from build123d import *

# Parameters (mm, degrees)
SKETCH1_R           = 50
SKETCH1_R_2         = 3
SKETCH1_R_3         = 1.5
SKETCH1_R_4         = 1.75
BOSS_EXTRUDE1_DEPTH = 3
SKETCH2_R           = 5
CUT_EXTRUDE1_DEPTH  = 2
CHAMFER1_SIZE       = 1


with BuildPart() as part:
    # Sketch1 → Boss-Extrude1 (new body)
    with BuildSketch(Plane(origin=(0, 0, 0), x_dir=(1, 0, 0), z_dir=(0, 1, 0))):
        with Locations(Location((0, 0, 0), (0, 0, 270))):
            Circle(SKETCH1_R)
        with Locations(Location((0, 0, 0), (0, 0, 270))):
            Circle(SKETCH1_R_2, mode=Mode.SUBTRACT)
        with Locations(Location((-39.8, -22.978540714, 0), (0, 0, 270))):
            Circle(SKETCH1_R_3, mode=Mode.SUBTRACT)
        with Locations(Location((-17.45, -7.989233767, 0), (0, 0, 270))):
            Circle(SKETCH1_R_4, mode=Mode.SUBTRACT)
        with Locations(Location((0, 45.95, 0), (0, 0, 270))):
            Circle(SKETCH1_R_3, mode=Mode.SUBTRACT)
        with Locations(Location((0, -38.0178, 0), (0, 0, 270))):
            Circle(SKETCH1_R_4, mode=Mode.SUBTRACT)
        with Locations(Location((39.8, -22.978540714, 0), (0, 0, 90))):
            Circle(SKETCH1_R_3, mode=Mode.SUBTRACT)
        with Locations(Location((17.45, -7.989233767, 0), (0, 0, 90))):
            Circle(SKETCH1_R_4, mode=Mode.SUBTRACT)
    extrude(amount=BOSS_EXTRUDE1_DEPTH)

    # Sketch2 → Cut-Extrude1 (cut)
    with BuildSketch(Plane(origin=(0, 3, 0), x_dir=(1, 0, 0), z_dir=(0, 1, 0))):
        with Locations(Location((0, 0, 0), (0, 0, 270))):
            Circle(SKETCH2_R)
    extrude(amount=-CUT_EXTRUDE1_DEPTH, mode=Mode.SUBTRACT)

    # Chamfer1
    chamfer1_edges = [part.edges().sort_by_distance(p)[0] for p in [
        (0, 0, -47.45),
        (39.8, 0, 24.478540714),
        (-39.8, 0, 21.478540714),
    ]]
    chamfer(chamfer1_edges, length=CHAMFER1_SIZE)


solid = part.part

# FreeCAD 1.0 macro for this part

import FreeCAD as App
import Part
import Sketcher
Q = App.Units.Quantity


def edges_at(feature, points):
    """Names of the edges that pass closest to the given points."""
    edges = feature.Shape.Edges
    near = lambda p: min(range(len(edges)), key=lambda i: edges[i].distToShape(Part.Vertex(*p))[0])
    return sorted({f"Edge{near(p) + 1}" for p in points})

doc = App.newDocument("Part")
body = doc.addObject("PartDesign::Body", "Body")

sketch1 = body.newObject("Sketcher::SketchObject", "Sketch")
sketch1.AttachmentSupport = (doc.getObject("XZ_Plane"), [""])
sketch1.MapMode = "FlatFace"
sketch1.addGeometry([
    Part.Circle(App.Vector(0, 0, 0), App.Vector(0, 0, 1), 50),
    Part.Circle(App.Vector(0, -45.95, 0), App.Vector(0, 0, 1), 1.5),
    Part.Circle(App.Vector(-39.8, 22.978541, 0), App.Vector(0, 0, 1), 1.5),
    Part.Circle(App.Vector(-17.45, 7.989234, 0), App.Vector(0, 0, 1), 1.75),
    Part.Circle(App.Vector(0, 0, 0), App.Vector(0, 0, 1), 3),
    Part.Circle(App.Vector(17.45, 7.989234, 0), App.Vector(0, 0, 1), 1.75),
    Part.Circle(App.Vector(0, 38.0178, 0), App.Vector(0, 0, 1), 1.75),
    Part.Circle(App.Vector(39.8, 22.978541, 0), App.Vector(0, 0, 1), 1.5),
], False)
sketch1.addConstraint([
    Sketcher.Constraint("Coincident", 0, 3, -1, 1),
    Sketcher.Constraint("Coincident", 4, 3, -1, 1),
    Sketcher.Constraint("Equal", 1, 2),
    Sketcher.Constraint("Equal", 3, 5),
    Sketcher.Constraint("Equal", 5, 6),
    Sketcher.Constraint("Equal", 2, 7),
    Sketcher.Constraint("Symmetric", 3, 3, 5, 3, -2),
    Sketcher.Constraint("Symmetric", 2, 3, 7, 3, -2),
    Sketcher.Constraint("PointOnObject", 1, 3, -2),
    Sketcher.Constraint("PointOnObject", 6, 3, -2),
    Sketcher.Constraint("Diameter", 0, Q("100 mm")),
    Sketcher.Constraint("Diameter", 1, Q("3 mm")),
    Sketcher.Constraint("Diameter", 4, Q("6 mm")),
    Sketcher.Constraint("Diameter", 3, Q("3.5 mm")),
    Sketcher.Constraint("DistanceX", 2, 3, -1, 1, Q("39.8 mm")),
    Sketcher.Constraint("DistanceX", 3, 3, 5, 3, Q("34.9 mm")),
    Sketcher.Constraint("DistanceY", 1, 3, -1, 1, Q("45.95 mm")),
    Sketcher.Constraint("DistanceY", -1, 1, 6, 3, Q("38.0178 mm")),
    Sketcher.Constraint("DistanceY", -1, 1, 2, 3, Q("22.978541 mm")),
    Sketcher.Constraint("DistanceY", -1, 1, 3, 3, Q("7.989234 mm")),
])
pad1 = body.newObject("PartDesign::Pad", "Pad")
pad1.Profile = sketch1
pad1.Length = 3
pad1.Reversed = True

sketch2 = body.newObject("Sketcher::SketchObject", "Sketch001")
sketch2.AttachmentSupport = (doc.getObject("XZ_Plane"), [""])
sketch2.MapMode = "FlatFace"
sketch2.AttachmentOffset = App.Placement(App.Vector(0, 0, -3), App.Rotation())
sketch2.addGeometry(Part.Circle(App.Vector(0, 0, 0), App.Vector(0, 0, 1), 5), False)
sketch2.addConstraint([
    Sketcher.Constraint("Coincident", 0, 3, -1, 1),
    Sketcher.Constraint("Diameter", 0, Q("10 mm")),
])
pocket1 = body.newObject("PartDesign::Pocket", "Pocket")
pocket1.Profile = sketch2
pocket1.Length = 2
pocket1.Reversed = True
doc.recompute()

chamfer = body.newObject("PartDesign::Chamfer", "Chamfer")
chamfer.Base = (pocket1, edges_at(pocket1, [(0, 0, -47.45), (39.8, 0, 24.479), (-39.8, 0, 21.479)]))
chamfer.Size = 1

doc.recompute()
